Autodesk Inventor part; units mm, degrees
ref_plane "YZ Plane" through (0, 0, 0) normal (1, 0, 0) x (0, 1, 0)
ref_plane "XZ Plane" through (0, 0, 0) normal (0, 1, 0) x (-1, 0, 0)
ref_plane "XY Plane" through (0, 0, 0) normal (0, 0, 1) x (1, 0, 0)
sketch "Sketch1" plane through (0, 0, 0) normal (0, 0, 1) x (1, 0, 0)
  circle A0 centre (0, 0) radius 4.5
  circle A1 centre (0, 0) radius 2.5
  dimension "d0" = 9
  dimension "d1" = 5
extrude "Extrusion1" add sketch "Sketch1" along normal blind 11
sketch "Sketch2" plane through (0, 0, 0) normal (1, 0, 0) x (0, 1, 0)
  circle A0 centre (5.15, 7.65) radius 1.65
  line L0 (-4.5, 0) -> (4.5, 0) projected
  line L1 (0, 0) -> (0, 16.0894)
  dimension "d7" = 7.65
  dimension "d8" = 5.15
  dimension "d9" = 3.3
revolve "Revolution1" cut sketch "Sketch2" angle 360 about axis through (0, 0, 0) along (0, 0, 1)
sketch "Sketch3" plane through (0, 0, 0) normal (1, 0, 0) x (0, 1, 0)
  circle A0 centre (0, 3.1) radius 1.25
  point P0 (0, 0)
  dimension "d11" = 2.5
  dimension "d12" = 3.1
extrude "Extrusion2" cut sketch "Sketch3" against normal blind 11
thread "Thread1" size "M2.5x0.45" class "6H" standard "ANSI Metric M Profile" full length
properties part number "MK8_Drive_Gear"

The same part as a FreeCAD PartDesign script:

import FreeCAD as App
import Part
import Sketcher
from FreeCAD import Vector

doc = App.newDocument("Part")
params = doc.addObject("Spreadsheet::Sheet", "Params")
for row, (alias, value) in enumerate([
    ("sketch1_diameter", "9 mm"),
    ("sketch1_diameter2", "5 mm"),
    ("pad1_length", "11 mm"),
    ("sketch2_diameter", "3.3 mm"),
    ("groove_angle", "360 deg"),
    ("sketch3_diameter", "2.5 mm"),
    ("pocket1_length", "11 mm"),
], start=1):
    params.set(f"A{row}", alias)
    params.set(f"B{row}", "=" + value)
    params.setAlias(f"B{row}", alias)

body = doc.addObject("PartDesign::Body", "Body")

# Sketch on XY plane
sketch1 = body.newObject("Sketcher::SketchObject", "Sketch")
sketch1.AttachmentSupport = (doc.getObject("XY_Plane"), [""])
sketch1.MapMode = "FlatFace"
sketch1.addGeometry([
    Part.Circle(Vector(0, 0, 0), Vector(0, 0, 1), 4.5),
    Part.Circle(Vector(0, 0, 0), Vector(0, 0, 1), 2.5),
], False)
sketch1.addConstraint([
    Sketcher.Constraint("Coincident", 0, 3, -1, 1),
    Sketcher.Constraint("Coincident", 1, 3, -1, 1),
    Sketcher.Constraint("Diameter", 0, 9.0),
    Sketcher.Constraint("Diameter", 1, 5.0),
])
sketch1.setExpression("Constraints[2]", "Params.sketch1_diameter")
sketch1.setExpression("Constraints[3]", "Params.sketch1_diameter2")
pad1 = body.newObject("PartDesign::Pad", "Pad")
pad1.Profile = sketch1
pad1.setExpression("Length", "Params.pad1_length")

# Sketch on YZ plane
sketch2 = body.newObject("Sketcher::SketchObject", "Sketch001")
sketch2.AttachmentSupport = (doc.getObject("YZ_Plane"), [""])
sketch2.MapMode = "FlatFace"
sketch2.addGeometry(Part.Circle(Vector(5.2, 7.7, 0), Vector(0, 0, 1), 1.6), False)
sketch2.addConstraint([
    Sketcher.Constraint("Diameter", 0, 3.3),
    Sketcher.Constraint("DistanceX", -1, 1, 0, 3, 5.15),
    Sketcher.Constraint("DistanceY", -1, 1, 0, 3, 7.65),
])
sketch2.setExpression("Constraints[0]", "Params.sketch2_diameter")
groove = body.newObject("PartDesign::Groove", "Groove")
groove.Profile = sketch2
groove.ReferenceAxis = (sketch2, ["V_Axis"])
groove.setExpression("Angle", "Params.groove_angle")

# Sketch on YZ plane
sketch3 = body.newObject("Sketcher::SketchObject", "Sketch002")
sketch3.AttachmentSupport = (doc.getObject("YZ_Plane"), [""])
sketch3.MapMode = "FlatFace"
sketch3.addGeometry(Part.Circle(Vector(0, 3.1, 0), Vector(0, 0, 1), 1.2), False)
sketch3.addConstraint([
    Sketcher.Constraint("PointOnObject", 0, 3, -2),
    Sketcher.Constraint("Diameter", 0, 2.5),
    Sketcher.Constraint("DistanceY", -1, 1, 0, 3, 3.1),
])
sketch3.setExpression("Constraints[1]", "Params.sketch3_diameter")
pocket1 = body.newObject("PartDesign::Pocket", "Pocket")
pocket1.Profile = sketch3
pocket1.setExpression("Length", "Params.pocket1_length")

doc.recompute()
